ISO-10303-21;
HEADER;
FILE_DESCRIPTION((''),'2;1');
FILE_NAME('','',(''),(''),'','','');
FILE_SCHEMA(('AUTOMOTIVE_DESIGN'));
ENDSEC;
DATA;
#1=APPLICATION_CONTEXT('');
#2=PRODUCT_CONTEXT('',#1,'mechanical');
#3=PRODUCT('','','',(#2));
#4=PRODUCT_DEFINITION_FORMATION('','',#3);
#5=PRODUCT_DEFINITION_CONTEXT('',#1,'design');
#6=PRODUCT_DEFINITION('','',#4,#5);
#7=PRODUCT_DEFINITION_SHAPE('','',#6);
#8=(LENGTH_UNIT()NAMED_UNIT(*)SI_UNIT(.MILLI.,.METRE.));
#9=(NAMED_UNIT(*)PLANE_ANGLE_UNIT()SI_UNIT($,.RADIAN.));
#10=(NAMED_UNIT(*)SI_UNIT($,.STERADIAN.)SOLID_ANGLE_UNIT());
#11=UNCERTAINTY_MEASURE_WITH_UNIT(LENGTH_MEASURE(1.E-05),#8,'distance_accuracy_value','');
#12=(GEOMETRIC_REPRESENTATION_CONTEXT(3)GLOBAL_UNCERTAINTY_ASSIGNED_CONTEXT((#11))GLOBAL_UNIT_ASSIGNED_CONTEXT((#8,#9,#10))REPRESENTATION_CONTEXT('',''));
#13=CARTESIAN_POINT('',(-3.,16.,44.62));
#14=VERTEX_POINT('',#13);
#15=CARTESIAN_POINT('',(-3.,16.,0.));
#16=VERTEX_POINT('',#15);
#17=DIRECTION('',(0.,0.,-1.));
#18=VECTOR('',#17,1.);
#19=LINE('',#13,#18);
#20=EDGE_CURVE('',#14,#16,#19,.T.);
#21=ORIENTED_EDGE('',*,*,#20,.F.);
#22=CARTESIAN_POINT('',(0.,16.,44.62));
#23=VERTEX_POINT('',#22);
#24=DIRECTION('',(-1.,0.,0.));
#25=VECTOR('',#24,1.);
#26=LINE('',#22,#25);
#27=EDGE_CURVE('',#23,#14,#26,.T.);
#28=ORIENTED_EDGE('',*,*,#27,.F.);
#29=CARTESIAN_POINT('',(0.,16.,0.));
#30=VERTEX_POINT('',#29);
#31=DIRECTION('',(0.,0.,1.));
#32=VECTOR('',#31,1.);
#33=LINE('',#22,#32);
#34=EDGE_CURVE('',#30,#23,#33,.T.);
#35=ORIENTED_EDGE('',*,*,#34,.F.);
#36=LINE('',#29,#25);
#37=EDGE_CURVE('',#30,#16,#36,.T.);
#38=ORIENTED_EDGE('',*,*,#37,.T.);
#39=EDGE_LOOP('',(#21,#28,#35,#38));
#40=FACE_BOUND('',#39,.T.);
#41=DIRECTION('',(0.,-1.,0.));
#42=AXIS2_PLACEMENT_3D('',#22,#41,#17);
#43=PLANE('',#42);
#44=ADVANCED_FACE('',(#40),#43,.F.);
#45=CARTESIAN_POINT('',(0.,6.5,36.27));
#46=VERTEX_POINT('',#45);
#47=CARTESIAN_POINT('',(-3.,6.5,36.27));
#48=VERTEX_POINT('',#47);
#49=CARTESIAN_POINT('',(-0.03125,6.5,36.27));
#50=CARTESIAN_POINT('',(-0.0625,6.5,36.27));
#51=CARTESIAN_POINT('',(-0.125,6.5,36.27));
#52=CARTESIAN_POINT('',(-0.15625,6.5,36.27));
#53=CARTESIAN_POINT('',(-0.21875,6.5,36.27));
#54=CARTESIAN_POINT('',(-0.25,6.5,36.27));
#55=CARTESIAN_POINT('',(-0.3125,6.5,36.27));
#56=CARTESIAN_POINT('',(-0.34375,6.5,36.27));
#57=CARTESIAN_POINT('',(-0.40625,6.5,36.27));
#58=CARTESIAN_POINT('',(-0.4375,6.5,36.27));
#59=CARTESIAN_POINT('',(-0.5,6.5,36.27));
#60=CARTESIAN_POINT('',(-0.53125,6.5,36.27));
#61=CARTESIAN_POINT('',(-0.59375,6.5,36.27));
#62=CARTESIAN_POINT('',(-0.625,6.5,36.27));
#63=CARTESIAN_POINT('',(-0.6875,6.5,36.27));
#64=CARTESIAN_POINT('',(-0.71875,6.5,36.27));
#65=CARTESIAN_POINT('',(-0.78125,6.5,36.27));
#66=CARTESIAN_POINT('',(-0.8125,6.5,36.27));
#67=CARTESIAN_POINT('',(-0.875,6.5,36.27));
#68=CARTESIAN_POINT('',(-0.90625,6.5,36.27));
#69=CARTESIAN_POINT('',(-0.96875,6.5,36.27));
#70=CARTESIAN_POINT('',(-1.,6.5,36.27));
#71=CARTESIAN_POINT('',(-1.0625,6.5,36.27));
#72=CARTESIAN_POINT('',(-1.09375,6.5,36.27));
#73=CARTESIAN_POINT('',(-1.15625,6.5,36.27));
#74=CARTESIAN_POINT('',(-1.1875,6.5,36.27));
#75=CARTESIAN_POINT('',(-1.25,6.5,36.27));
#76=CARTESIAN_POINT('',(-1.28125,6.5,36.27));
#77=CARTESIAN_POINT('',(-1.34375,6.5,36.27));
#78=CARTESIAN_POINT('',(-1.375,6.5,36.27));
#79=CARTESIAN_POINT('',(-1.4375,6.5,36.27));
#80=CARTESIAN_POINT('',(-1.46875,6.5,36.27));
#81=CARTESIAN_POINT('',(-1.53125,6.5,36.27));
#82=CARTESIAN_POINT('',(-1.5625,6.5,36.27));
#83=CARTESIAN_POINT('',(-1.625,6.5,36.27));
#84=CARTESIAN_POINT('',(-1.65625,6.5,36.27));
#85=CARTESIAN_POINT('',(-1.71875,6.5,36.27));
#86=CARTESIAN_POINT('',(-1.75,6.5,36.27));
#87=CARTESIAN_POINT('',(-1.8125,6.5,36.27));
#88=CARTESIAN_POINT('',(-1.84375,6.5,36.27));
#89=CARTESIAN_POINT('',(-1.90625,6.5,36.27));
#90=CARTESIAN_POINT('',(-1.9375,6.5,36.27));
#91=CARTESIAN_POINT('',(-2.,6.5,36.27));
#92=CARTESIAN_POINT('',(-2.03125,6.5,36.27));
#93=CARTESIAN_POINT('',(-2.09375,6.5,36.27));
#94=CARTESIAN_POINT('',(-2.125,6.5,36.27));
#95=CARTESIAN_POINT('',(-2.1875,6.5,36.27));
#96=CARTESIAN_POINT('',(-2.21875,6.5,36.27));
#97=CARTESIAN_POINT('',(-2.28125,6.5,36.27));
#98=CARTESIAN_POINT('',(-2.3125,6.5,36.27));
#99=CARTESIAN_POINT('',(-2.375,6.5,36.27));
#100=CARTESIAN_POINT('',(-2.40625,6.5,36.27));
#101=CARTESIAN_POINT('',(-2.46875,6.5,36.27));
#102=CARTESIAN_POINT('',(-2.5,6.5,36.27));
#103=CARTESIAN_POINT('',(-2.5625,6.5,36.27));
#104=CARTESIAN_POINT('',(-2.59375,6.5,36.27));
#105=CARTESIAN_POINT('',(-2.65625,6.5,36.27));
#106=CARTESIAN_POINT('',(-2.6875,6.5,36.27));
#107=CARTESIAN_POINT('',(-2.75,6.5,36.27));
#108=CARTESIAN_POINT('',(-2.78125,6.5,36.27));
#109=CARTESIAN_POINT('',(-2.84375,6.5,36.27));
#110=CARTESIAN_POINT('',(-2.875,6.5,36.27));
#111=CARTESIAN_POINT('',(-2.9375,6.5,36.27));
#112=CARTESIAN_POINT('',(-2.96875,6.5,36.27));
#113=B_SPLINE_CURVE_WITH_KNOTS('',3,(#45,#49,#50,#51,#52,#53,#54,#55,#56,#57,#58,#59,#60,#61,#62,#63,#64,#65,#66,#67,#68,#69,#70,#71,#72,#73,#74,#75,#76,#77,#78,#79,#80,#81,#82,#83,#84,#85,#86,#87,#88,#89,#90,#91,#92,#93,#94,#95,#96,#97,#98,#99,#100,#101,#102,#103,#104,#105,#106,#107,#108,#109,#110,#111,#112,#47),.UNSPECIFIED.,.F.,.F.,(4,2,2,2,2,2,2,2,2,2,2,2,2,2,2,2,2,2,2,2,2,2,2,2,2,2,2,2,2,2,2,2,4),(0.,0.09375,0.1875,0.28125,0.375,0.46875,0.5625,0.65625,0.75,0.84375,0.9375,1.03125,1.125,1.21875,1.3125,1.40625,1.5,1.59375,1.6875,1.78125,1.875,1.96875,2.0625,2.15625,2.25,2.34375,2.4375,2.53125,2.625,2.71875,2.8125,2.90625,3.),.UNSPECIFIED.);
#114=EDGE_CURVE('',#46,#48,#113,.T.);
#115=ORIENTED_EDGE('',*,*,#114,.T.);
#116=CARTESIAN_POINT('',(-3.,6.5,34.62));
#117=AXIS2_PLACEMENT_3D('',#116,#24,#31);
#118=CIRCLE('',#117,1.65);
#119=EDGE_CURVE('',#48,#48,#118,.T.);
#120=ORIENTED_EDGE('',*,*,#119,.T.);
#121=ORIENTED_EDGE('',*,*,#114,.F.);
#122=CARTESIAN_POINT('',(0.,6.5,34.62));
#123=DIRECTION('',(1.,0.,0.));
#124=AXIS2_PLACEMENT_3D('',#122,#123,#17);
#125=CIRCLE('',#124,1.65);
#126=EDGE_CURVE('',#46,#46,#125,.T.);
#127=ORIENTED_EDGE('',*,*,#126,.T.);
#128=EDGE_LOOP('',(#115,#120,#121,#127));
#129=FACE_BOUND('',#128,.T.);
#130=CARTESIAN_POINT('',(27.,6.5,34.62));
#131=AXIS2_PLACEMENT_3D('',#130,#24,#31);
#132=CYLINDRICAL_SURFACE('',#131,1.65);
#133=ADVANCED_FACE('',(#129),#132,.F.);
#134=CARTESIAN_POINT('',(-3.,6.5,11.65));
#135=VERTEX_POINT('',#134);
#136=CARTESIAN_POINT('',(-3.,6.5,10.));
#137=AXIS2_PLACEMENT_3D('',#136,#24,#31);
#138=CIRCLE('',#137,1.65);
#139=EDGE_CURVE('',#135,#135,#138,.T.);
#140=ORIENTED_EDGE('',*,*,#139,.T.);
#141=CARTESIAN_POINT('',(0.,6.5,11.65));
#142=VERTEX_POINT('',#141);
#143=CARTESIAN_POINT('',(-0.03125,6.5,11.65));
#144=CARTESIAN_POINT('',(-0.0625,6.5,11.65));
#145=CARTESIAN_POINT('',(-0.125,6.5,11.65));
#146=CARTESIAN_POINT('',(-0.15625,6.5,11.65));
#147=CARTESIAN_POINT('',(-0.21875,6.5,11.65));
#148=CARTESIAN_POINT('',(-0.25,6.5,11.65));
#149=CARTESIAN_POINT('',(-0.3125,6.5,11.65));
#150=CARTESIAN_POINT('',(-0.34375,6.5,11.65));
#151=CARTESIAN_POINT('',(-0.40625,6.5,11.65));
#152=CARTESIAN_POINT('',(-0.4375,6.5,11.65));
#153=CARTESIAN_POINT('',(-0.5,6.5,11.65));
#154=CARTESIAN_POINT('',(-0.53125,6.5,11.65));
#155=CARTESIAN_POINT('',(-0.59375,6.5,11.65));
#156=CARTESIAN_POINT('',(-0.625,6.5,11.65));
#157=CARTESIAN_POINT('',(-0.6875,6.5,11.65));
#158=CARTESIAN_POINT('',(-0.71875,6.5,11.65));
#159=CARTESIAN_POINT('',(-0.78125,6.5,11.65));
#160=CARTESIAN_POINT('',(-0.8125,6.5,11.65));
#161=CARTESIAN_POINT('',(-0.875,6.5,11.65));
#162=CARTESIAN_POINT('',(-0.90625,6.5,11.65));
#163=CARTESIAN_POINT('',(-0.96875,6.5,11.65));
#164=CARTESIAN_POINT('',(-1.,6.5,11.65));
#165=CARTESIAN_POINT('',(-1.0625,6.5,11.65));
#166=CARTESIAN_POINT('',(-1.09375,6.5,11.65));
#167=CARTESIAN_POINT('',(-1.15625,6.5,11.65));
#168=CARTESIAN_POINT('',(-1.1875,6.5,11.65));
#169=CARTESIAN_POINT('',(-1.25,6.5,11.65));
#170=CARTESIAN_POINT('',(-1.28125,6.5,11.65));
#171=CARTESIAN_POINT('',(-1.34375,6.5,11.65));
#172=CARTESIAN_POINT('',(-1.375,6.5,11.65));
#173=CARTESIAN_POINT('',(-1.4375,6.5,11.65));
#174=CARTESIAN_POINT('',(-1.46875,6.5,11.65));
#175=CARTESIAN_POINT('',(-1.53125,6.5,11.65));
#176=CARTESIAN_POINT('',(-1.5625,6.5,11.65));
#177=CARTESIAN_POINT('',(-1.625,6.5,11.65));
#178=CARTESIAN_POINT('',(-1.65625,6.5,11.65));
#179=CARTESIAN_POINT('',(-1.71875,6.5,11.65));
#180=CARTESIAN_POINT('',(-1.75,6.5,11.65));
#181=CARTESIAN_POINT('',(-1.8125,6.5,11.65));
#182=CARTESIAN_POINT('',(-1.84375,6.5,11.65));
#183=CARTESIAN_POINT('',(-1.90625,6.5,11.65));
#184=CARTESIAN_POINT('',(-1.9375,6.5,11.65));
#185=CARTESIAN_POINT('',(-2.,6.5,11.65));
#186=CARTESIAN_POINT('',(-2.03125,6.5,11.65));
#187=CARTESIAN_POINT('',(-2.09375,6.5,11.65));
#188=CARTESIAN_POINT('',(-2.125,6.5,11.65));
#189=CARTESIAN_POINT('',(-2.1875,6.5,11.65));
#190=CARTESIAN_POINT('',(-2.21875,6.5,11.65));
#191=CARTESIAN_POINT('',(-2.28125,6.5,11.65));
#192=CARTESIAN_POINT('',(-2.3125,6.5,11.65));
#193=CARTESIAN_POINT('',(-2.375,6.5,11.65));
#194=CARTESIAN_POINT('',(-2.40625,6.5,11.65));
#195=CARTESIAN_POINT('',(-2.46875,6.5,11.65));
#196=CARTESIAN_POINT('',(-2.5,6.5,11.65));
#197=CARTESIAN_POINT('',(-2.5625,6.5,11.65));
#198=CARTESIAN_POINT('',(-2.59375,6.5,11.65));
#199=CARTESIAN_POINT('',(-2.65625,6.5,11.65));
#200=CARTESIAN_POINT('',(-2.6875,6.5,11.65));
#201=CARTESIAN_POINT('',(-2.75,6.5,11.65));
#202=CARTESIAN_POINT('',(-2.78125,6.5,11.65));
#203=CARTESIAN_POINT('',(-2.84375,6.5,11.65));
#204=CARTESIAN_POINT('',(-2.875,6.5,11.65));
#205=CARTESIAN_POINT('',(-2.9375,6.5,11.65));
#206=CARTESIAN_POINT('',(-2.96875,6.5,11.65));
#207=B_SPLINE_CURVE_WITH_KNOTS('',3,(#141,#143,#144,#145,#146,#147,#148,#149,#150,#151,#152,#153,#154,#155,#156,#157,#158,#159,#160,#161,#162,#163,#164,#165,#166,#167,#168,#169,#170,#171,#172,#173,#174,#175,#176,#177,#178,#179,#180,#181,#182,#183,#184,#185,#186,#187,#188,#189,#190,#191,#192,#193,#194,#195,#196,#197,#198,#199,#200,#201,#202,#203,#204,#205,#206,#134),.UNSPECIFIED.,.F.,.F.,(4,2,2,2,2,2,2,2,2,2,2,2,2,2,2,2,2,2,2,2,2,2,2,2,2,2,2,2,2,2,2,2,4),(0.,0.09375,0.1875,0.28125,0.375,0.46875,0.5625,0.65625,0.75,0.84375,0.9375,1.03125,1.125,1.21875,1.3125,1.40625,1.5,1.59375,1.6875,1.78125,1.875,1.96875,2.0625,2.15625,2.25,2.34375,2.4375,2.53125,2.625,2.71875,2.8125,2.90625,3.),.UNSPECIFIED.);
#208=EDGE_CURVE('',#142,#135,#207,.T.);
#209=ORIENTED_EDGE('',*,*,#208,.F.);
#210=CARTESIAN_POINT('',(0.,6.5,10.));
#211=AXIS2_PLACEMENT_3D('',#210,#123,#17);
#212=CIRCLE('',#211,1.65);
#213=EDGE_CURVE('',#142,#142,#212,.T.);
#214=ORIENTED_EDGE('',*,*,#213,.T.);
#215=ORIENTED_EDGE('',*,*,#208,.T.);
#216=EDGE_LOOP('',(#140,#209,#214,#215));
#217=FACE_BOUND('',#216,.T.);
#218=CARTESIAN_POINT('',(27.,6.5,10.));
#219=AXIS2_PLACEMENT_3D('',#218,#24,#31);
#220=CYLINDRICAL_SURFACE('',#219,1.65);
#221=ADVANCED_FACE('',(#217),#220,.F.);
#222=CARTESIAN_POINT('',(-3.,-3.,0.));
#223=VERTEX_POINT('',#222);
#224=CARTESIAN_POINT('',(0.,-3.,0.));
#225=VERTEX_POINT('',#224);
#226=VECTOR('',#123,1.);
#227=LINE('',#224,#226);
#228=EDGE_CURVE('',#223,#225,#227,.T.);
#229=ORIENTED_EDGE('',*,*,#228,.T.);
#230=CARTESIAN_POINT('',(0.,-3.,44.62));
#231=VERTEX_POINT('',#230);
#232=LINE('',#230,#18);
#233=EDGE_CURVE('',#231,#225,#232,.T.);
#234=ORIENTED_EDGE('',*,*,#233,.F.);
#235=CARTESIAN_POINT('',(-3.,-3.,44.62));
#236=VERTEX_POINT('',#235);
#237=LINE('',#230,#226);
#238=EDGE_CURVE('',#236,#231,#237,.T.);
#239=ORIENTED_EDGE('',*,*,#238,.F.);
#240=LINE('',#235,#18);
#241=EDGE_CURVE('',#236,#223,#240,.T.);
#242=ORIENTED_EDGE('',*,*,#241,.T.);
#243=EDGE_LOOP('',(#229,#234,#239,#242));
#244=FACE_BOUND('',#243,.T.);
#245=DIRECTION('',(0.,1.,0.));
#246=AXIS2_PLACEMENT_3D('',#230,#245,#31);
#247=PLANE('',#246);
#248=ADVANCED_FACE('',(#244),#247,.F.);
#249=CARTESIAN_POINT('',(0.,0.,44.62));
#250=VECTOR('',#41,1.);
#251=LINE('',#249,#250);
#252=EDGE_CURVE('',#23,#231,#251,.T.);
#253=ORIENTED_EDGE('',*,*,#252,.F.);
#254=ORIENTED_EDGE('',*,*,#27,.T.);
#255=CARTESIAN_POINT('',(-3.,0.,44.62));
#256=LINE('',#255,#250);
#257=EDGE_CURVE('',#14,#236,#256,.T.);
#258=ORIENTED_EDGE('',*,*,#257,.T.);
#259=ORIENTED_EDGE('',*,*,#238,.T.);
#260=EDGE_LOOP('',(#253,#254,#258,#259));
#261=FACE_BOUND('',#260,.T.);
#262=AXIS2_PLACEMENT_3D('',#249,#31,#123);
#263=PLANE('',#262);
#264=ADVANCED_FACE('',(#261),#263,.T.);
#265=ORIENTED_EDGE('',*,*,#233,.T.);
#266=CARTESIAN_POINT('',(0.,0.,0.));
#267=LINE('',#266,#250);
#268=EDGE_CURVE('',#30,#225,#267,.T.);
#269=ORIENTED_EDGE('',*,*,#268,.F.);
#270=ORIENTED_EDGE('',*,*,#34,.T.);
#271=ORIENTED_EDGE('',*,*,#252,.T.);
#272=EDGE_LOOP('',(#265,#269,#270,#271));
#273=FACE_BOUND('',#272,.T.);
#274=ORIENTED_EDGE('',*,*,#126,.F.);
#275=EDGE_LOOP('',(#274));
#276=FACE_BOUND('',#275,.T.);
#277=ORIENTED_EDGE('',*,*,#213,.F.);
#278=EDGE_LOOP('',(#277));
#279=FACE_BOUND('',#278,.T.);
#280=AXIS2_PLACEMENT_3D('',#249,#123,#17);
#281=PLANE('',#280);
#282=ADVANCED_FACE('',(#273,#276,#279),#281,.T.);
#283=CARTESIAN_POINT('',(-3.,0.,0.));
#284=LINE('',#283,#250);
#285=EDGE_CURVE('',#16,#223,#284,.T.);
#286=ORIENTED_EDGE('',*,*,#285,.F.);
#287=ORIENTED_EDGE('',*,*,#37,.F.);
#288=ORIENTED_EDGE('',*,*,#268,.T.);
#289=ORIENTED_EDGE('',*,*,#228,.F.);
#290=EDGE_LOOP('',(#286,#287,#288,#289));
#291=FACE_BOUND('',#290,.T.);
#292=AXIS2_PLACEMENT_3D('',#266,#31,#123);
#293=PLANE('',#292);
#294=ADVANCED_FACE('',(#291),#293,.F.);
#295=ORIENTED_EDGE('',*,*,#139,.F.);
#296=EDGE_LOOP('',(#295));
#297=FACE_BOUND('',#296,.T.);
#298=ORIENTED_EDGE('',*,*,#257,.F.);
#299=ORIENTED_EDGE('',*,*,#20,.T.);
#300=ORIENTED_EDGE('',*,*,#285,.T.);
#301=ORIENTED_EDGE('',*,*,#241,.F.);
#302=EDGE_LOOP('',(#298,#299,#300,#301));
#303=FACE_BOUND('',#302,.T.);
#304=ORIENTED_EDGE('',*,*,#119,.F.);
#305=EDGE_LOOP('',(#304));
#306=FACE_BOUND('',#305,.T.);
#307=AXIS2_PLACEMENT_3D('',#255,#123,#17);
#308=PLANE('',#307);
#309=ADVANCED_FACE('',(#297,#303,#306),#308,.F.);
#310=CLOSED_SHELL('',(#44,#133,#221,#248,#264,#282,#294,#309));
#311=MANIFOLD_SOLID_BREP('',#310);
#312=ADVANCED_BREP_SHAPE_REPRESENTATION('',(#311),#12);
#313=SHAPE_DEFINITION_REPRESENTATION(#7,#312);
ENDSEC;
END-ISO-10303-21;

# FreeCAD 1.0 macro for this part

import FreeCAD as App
import Part
import Sketcher


def add_polygon(sketch, points):
    """Adds a closed chain of lines whose ends are joined by coincident constraints."""
    first, n = sketch.GeometryCount, len(points)
    for a, b in zip(points, points[1:] + points[:1]):
        sketch.addGeometry(Part.LineSegment(App.Vector(*a, 0), App.Vector(*b, 0)), False)
    for i in range(n):
        sketch.addConstraint(Sketcher.Constraint("Coincident", first + i, 2, first + (i + 1) % n, 1))

doc = App.newDocument("Part")
body = doc.addObject("PartDesign::Body", "Body")

sketch1 = doc.addObject("Sketcher::SketchObject", "Sketch")
body.addObject(sketch1)
sketch1.AttachmentSupport = (doc.XY_Plane, [""])
sketch1.MapMode = "FlatFace"
add_polygon(sketch1, [(-3, 16), (-3, -3), (16, -3), (16, 16)])
add_polygon(sketch1, [(13, 0), (0, 0), (0, 13), (13, 13)])
sketch1.addConstraint([
    Sketcher.Constraint("Vertical", 0),
    Sketcher.Constraint("Horizontal", 1),
    Sketcher.Constraint("Vertical", 2),
    Sketcher.Constraint("Horizontal", 3),
    Sketcher.Constraint("Horizontal", 4),
    Sketcher.Constraint("Vertical", 5),
    Sketcher.Constraint("Horizontal", 6),
    Sketcher.Constraint("Vertical", 7),
    Sketcher.Constraint("Coincident", 4, 2, -1, 1),
    Sketcher.Constraint("Equal", 3, 0),
    Sketcher.Constraint("Equal", 6, 5),
    Sketcher.Constraint("DistanceX", 1, 1, 1, 2, 19.0),
    Sketcher.Constraint("DistanceX", 4, 2, 4, 1, 13.0),
    Sketcher.Constraint("DistanceX", 0, 2, -1, 1, 3.0),
    Sketcher.Constraint("DistanceY", 0, 2, -1, 1, 3.0),
])
pad1 = doc.addObject("PartDesign::Pad", "Pad")
body.addObject(pad1)
pad1.Profile = sketch1
pad1.Length = 44.62

sketch2 = doc.addObject("Sketcher::SketchObject", "Sketch001")
body.addObject(sketch2)
sketch2.AttachmentSupport = (doc.YZ_Plane, [""])
sketch2.MapMode = "FlatFace"
sketch2.AttachmentOffset = App.Placement(App.Vector(0, 0, -3), App.Rotation())
sketch2.addGeometry([
    Part.Circle(App.Vector(6.5, 10, 0), App.Vector(0, 0, 1), 1.65),
    Part.Circle(App.Vector(6.5, 34.62, 0), App.Vector(0, 0, 1), 1.65),
], False)
sketch2.addConstraint([
    Sketcher.Constraint("Equal", 0, 1),
    Sketcher.Constraint("Vertical", 0, 3, 1, 3),
    Sketcher.Constraint("Diameter", 0, 3.3),
    Sketcher.Constraint("DistanceY", -1, 1, 0, 3, 10.0),
    Sketcher.Constraint("DistanceX", -1, 1, 0, 3, 6.5),
    Sketcher.Constraint("DistanceY", -1, 1, 1, 3, 34.62),
])
pocket1 = doc.addObject("PartDesign::Pocket", "Pocket")
body.addObject(pocket1)
pocket1.Profile = sketch2
pocket1.Length = 30
pocket1.Reversed = True

sketch3 = doc.addObject("Sketcher::SketchObject", "Sketch002")
body.addObject(sketch3)
sketch3.AttachmentSupport = (doc.YZ_Plane, [""])
sketch3.MapMode = "FlatFace"
sketch3.AttachmentOffset = App.Placement(App.Vector(0, 0, 16), App.Rotation())
add_polygon(sketch3, [(16, 44.62), (-3, 44.62), (-3, 0), (16, 0)])
sketch3.addConstraint([
    Sketcher.Constraint("Horizontal", 0),
    Sketcher.Constraint("Vertical", 1),
    Sketcher.Constraint("Horizontal", 2),
    Sketcher.Constraint("Vertical", 3),
    Sketcher.Constraint("PointOnObject", 1, 2, -1),
    Sketcher.Constraint("DistanceX", 0, 2, 0, 1, 19.0),
    Sketcher.Constraint("DistanceX", 0, 2, -1, 1, 3.0),
    Sketcher.Constraint("DistanceY", 1, 2, 1, 1, 44.62),
])
pocket2 = doc.addObject("PartDesign::Pocket", "Pocket001")
body.addObject(pocket2)
pocket2.Profile = sketch3
pocket2.Length = 16

doc.recompute()
